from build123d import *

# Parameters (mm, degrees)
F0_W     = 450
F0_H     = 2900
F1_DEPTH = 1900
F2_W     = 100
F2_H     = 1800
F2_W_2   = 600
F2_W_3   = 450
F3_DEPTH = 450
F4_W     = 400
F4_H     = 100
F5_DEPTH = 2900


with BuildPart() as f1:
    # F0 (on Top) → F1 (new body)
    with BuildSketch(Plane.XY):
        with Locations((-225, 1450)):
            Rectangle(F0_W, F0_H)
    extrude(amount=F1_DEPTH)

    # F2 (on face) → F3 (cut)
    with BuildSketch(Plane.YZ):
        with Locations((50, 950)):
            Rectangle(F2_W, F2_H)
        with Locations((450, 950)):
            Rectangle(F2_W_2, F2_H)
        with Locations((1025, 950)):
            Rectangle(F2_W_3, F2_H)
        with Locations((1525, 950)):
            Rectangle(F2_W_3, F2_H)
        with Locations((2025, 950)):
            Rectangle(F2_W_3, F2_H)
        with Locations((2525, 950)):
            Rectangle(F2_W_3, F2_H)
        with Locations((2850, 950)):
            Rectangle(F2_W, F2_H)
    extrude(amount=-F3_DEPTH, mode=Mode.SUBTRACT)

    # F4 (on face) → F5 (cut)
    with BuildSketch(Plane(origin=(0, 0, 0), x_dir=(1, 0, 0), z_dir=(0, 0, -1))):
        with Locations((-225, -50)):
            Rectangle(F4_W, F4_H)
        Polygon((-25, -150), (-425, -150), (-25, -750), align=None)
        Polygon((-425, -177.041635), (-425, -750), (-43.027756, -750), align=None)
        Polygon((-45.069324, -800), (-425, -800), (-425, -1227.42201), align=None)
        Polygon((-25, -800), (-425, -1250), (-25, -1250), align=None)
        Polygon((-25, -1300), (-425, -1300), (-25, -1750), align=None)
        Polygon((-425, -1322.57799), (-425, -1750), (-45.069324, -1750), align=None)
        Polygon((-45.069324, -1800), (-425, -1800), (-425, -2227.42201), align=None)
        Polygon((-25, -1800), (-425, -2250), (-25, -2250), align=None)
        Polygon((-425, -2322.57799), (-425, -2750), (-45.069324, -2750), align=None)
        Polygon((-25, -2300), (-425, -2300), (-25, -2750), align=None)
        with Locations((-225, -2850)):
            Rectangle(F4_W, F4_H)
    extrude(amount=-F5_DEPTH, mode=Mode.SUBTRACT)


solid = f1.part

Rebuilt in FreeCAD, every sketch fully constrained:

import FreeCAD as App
import Part
import Sketcher
from FreeCAD import Vector
Q = App.Units.Quantity


def add_polygon(sketch, points):
    """Adds a closed chain of lines whose ends are joined by coincident constraints."""
    first, n = sketch.GeometryCount, len(points)
    for a, b in zip(points, points[1:] + points[:1]):
        sketch.addGeometry(Part.LineSegment(App.Vector(*a, 0), App.Vector(*b, 0)), False)
    for i in range(n):
        sketch.addConstraint(Sketcher.Constraint("Coincident", first + i, 2, first + (i + 1) % n, 1))

doc = App.newDocument("Part")
params = doc.addObject("Spreadsheet::Sheet", "Params")
for row, (alias, value) in enumerate([
    ("sketch1_width", "450 mm"),
    ("sketch1_height", "2900 mm"),
    ("pad1_length", "1900 mm"),
    ("sketch2_width", "100 mm"),
    ("sketch2_width2", "600 mm"),
    ("sketch2_width3", "450 mm"),
    ("sketch2_height", "1800 mm"),
    ("pocket1_length", "450 mm"),
    ("sketch3_width", "400 mm"),
    ("sketch3_height", "100 mm"),
    ("sketch3_height2", "600 mm"),
    ("sketch3_height3", "450 mm"),
    ("pocket2_length", "2900 mm"),
], start=1):
    params.set(f"A{row}", alias)
    params.set(f"B{row}", "=" + value)
    params.setAlias(f"B{row}", alias)

body = doc.addObject("PartDesign::Body", "Body")

# Sketch on XY plane
sketch1 = body.newObject("Sketcher::SketchObject", "Sketch")
sketch1.AttachmentSupport = (doc.getObject("XY_Plane"), [""])
sketch1.MapMode = "FlatFace"
add_polygon(sketch1, [(-450, 2900), (-450, 0), (0, 0), (0, 2900)])  # lines 0-3
sketch1.addConstraint([
    Sketcher.Constraint("Vertical", 0),
    Sketcher.Constraint("Horizontal", 1),
    Sketcher.Constraint("Vertical", 2),
    Sketcher.Constraint("Horizontal", 3),
    Sketcher.Constraint("Coincident", 1, 2, -1, 1),
    Sketcher.Constraint("DistanceX", 1, 1, 1, 2, Q("450 mm")),
    Sketcher.Constraint("DistanceY", 0, 2, 0, 1, Q("2900 mm")),
])
sketch1.setExpression("Constraints[9]", "Params.sketch1_width")
sketch1.setExpression("Constraints[10]", "Params.sketch1_height")
pad1 = body.newObject("PartDesign::Pad", "Pad")
pad1.Profile = sketch1
pad1.setExpression("Length", "Params.pad1_length")

# Sketch on YZ plane
sketch2 = body.newObject("Sketcher::SketchObject", "Sketch001")
sketch2.AttachmentSupport = (doc.getObject("YZ_Plane"), [""])
sketch2.MapMode = "FlatFace"
add_polygon(sketch2, [(0, 1850), (0, 50), (100, 50), (100, 1850)])  # lines 0-3
add_polygon(sketch2, [(150, 1850), (150, 50), (750, 50), (750, 1850)])  # lines 4-7
add_polygon(sketch2, [(800, 1850), (800, 50), (1250, 50), (1250, 1850)])  # lines 8-11
add_polygon(sketch2, [(1300, 1850), (1300, 50), (1750, 50), (1750, 1850)])  # lines 12-15
add_polygon(sketch2, [(1800, 1850), (1800, 50), (2250, 50), (2250, 1850)])  # lines 16-19
add_polygon(sketch2, [(2300, 1850), (2300, 50), (2750, 50), (2750, 1850)])  # lines 20-23
add_polygon(sketch2, [(2800, 1850), (2800, 50), (2900, 50), (2900, 1850)])  # lines 24-27
sketch2.addConstraint([
    Sketcher.Constraint("Vertical", 0),
    Sketcher.Constraint("Horizontal", 1),
    Sketcher.Constraint("Vertical", 2),
    Sketcher.Constraint("Horizontal", 3),
    Sketcher.Constraint("Vertical", 4),
    Sketcher.Constraint("Horizontal", 5),
    Sketcher.Constraint("Vertical", 6),
    Sketcher.Constraint("Horizontal", 7),
    Sketcher.Constraint("Vertical", 8),
    Sketcher.Constraint("Horizontal", 9),
    Sketcher.Constraint("Vertical", 10),
    Sketcher.Constraint("Horizontal", 11),
    Sketcher.Constraint("Vertical", 12),
    Sketcher.Constraint("Horizontal", 13),
    Sketcher.Constraint("Vertical", 14),
    Sketcher.Constraint("Horizontal", 15),
    Sketcher.Constraint("Vertical", 16),
    Sketcher.Constraint("Horizontal", 17),
    Sketcher.Constraint("Vertical", 18),
    Sketcher.Constraint("Horizontal", 19),
    Sketcher.Constraint("Vertical", 20),
    Sketcher.Constraint("Horizontal", 21),
    Sketcher.Constraint("Vertical", 22),
    Sketcher.Constraint("Horizontal", 23),
    Sketcher.Constraint("Vertical", 24),
    Sketcher.Constraint("Horizontal", 25),
    Sketcher.Constraint("Vertical", 26),
    Sketcher.Constraint("Horizontal", 27),
    Sketcher.Constraint("PointOnObject", 0, 2, -2),
    Sketcher.Constraint("Horizontal", 1, 2, 4, 2),
    Sketcher.Constraint("Horizontal", 3, 2, 6, 2),
    Sketcher.Constraint("Horizontal", 5, 2, 8, 2),
    Sketcher.Constraint("Horizontal", 7, 2, 10, 2),
    Sketcher.Constraint("Horizontal", 9, 2, 12, 2),
    Sketcher.Constraint("Horizontal", 11, 2, 14, 2),
    Sketcher.Constraint("Horizontal", 13, 2, 16, 2),
    Sketcher.Constraint("Horizontal", 15, 2, 18, 2),
    Sketcher.Constraint("Horizontal", 17, 2, 20, 2),
    Sketcher.Constraint("Horizontal", 19, 2, 22, 2),
    Sketcher.Constraint("Horizontal", 21, 2, 24, 2),
    Sketcher.Constraint("Horizontal", 23, 2, 26, 2),
    Sketcher.Constraint("Equal", 11, 13),
    Sketcher.Constraint("Equal", 15, 17),
    Sketcher.Constraint("Equal", 19, 21),
    Sketcher.Constraint("Equal", 3, 25),
    Sketcher.Constraint("DistanceX", 1, 1, 1, 2, Q("100 mm")),
    Sketcher.Constraint("DistanceX", 5, 1, 5, 2, Q("600 mm")),
    Sketcher.Constraint("DistanceX", 9, 1, 9, 2, Q("450 mm")),
    Sketcher.Constraint("DistanceY", 0, 2, 0, 1, Q("1800 mm")),
    Sketcher.Constraint("DistanceY", -1, 1, 0, 2, Q("50 mm")),
    Sketcher.Constraint("DistanceX", -1, 1, 4, 2, Q("150 mm")),
    Sketcher.Constraint("DistanceX", -1, 1, 8, 2, Q("800 mm")),
    Sketcher.Constraint("DistanceX", -1, 1, 12, 2, Q("1300 mm")),
    Sketcher.Constraint("DistanceX", -1, 1, 16, 2, Q("1800 mm")),
    Sketcher.Constraint("DistanceX", -1, 1, 20, 2, Q("2300 mm")),
    Sketcher.Constraint("DistanceX", -1, 1, 24, 2, Q("2800 mm")),
])
sketch2.setExpression("Constraints[73]", "Params.sketch2_width")
sketch2.setExpression("Constraints[74]", "Params.sketch2_width2")
sketch2.setExpression("Constraints[75]", "Params.sketch2_width3")
sketch2.setExpression("Constraints[76]", "Params.sketch2_height")
pocket1 = body.newObject("PartDesign::Pocket", "Pocket")
pocket1.Profile = sketch2
pocket1.setExpression("Length", "Params.pocket1_length")

# Sketch on XY plane
sketch3 = body.newObject("Sketcher::SketchObject", "Sketch002")
sketch3.AttachmentSupport = (doc.getObject("XY_Plane"), [""])
sketch3.MapMode = "FlatFace"
add_polygon(sketch3, [(-425, 0), (-425, 100), (-25, 100), (-25, 0)])  # lines 0-3
add_polygon(sketch3, [(-25, 150), (-425, 150), (-25, 750)])  # lines 4-6
add_polygon(sketch3, [(-425, 177), (-425, 750), (-43, 750)])  # lines 7-9
add_polygon(sketch3, [(-45, 800), (-425, 800), (-425, 1227)])  # lines 10-12
add_polygon(sketch3, [(-25, 800), (-425, 1250), (-25, 1250)])  # lines 13-15
add_polygon(sketch3, [(-25, 1300), (-425, 1300), (-25, 1750)])  # lines 16-18
add_polygon(sketch3, [(-425, 1323), (-425, 1750), (-45, 1750)])  # lines 19-21
add_polygon(sketch3, [(-45, 1800), (-425, 1800), (-425, 2227)])  # lines 22-24
add_polygon(sketch3, [(-25, 1800), (-425, 2250), (-25, 2250)])  # lines 25-27
add_polygon(sketch3, [(-425, 2323), (-425, 2750), (-45, 2750)])  # lines 28-30
add_polygon(sketch3, [(-25, 2300), (-425, 2300), (-25, 2750)])  # lines 31-33
add_polygon(sketch3, [(-425, 2800), (-425, 2900), (-25, 2900), (-25, 2800)])  # lines 34-37
sketch3.addConstraint([
    Sketcher.Constraint("Vertical", 0),
    Sketcher.Constraint("Horizontal", 1),
    Sketcher.Constraint("Vertical", 2),
    Sketcher.Constraint("Horizontal", 3),
    Sketcher.Constraint("Horizontal", 4),
    Sketcher.Constraint("Vertical", 6),
    Sketcher.Constraint("Vertical", 7),
    Sketcher.Constraint("Horizontal", 8),
    Sketcher.Constraint("Horizontal", 10),
    Sketcher.Constraint("Vertical", 11),
    Sketcher.Constraint("Horizontal", 14),
    Sketcher.Constraint("Vertical", 15),
    Sketcher.Constraint("Horizontal", 16),
    Sketcher.Constraint("Vertical", 18),
    Sketcher.Constraint("Vertical", 19),
    Sketcher.Constraint("Horizontal", 20),
    Sketcher.Constraint("Horizontal", 22),
    Sketcher.Constraint("Vertical", 23),
    Sketcher.Constraint("Horizontal", 26),
    Sketcher.Constraint("Vertical", 27),
    Sketcher.Constraint("Vertical", 28),
    Sketcher.Constraint("Horizontal", 29),
    Sketcher.Constraint("Horizontal", 31),
    Sketcher.Constraint("Vertical", 33),
    Sketcher.Constraint("Vertical", 34),
    Sketcher.Constraint("Horizontal", 35),
    Sketcher.Constraint("Vertical", 36),
    Sketcher.Constraint("Horizontal", 37),
    Sketcher.Constraint("PointOnObject", 2, 2, -1),
    Sketcher.Constraint("Parallel", 5, 9),
    Sketcher.Constraint("Parallel", 12, 13),
    Sketcher.Constraint("Parallel", 17, 21),
    Sketcher.Constraint("Parallel", 13, 24),
    Sketcher.Constraint("Parallel", 24, 25),
    Sketcher.Constraint("Parallel", 21, 30),
    Sketcher.Constraint("Parallel", 30, 32),
    Sketcher.Constraint("Horizontal", 5, 2, 7, 2),
    Sketcher.Constraint("Horizontal", 12, 2, 15, 2),
    Sketcher.Constraint("Horizontal", 17, 2, 19, 2),
    Sketcher.Constraint("Horizontal", 24, 2, 27, 2),
    Sketcher.Constraint("Horizontal", 29, 2, 32, 2),
    Sketcher.Constraint("Vertical", 3, 2, 4, 2),
    Sketcher.Constraint("Vertical", 2, 2, 5, 2),
    Sketcher.Constraint("Vertical", 4, 2, 7, 2),
    Sketcher.Constraint("Vertical", 9, 2, 10, 2),
    Sketcher.Constraint("Vertical", 11, 2, 13, 2),
    Sketcher.Constraint("Vertical", 6, 2, 14, 2),
    Sketcher.Constraint("Vertical", 13, 2, 16, 2),
    Sketcher.Constraint("Vertical", 15, 2, 17, 2),
    Sketcher.Constraint("Vertical", 16, 2, 19, 2),
    Sketcher.Constraint("Vertical", 12, 2, 20, 2),
    Sketcher.Constraint("Vertical", 21, 2, 22, 2),
    Sketcher.Constraint("Vertical", 20, 2, 24, 2),
    Sketcher.Constraint("Vertical", 23, 2, 25, 2),
    Sketcher.Constraint("Vertical", 18, 2, 26, 2),
    Sketcher.Constraint("Vertical", 25, 2, 28, 2),
    Sketcher.Constraint("Vertical", 24, 2, 29, 2),
    Sketcher.Constraint("Vertical", 30, 2, 31, 2),
    Sketcher.Constraint("Vertical", 27, 2, 32, 2),
    Sketcher.Constraint("Vertical", 31, 2, 34, 2),
    Sketcher.Constraint("Vertical", 33, 2, 35, 2),
    Sketcher.Constraint("Equal", 15, 18),
    Sketcher.Constraint("Equal", 2, 34),
    Sketcher.Constraint("DistanceX", 1, 1, 1, 2, Q("400 mm")),
    Sketcher.Constraint("DistanceY", 0, 1, 0, 2, Q("100 mm")),
    Sketcher.Constraint("DistanceY", 6, 2, 6, 1, Q("600 mm")),
    Sketcher.Constraint("DistanceY", 15, 2, 15, 1, Q("450 mm")),
    Sketcher.Constraint("DistanceX", 0, 2, -1, 1, Q("425 mm")),
    Sketcher.Constraint("DistanceY", -1, 1, 4, 2, Q("150 mm")),
    Sketcher.Constraint("DistanceY", -1, 1, 10, 2, Q("800 mm")),
    Sketcher.Constraint("DistanceY", -1, 1, 16, 2, Q("1300 mm")),
    Sketcher.Constraint("DistanceY", -1, 1, 22, 2, Q("1800 mm")),
    Sketcher.Constraint("DistanceY", -1, 1, 28, 2, Q("2750 mm")),
    Sketcher.Constraint("DistanceY", -1, 1, 34, 2, Q("2900 mm")),
    Sketcher.Constraint("DistanceY", 11, 1, 11, 2, Q("427.42201 mm")),
    Sketcher.Constraint("DistanceX", 8, 1, 8, 2, Q("381.972244 mm")),
])
sketch3.setExpression("Constraints[101]", "Params.sketch3_width")
sketch3.setExpression("Constraints[102]", "Params.sketch3_height")
sketch3.setExpression("Constraints[103]", "Params.sketch3_height2")
sketch3.setExpression("Constraints[104]", "Params.sketch3_height3")
pocket2 = body.newObject("PartDesign::Pocket", "Pocket001")
pocket2.Profile = sketch3
pocket2.setExpression("Length", "Params.pocket2_length")
pocket2.Reversed = True

doc.recompute()
